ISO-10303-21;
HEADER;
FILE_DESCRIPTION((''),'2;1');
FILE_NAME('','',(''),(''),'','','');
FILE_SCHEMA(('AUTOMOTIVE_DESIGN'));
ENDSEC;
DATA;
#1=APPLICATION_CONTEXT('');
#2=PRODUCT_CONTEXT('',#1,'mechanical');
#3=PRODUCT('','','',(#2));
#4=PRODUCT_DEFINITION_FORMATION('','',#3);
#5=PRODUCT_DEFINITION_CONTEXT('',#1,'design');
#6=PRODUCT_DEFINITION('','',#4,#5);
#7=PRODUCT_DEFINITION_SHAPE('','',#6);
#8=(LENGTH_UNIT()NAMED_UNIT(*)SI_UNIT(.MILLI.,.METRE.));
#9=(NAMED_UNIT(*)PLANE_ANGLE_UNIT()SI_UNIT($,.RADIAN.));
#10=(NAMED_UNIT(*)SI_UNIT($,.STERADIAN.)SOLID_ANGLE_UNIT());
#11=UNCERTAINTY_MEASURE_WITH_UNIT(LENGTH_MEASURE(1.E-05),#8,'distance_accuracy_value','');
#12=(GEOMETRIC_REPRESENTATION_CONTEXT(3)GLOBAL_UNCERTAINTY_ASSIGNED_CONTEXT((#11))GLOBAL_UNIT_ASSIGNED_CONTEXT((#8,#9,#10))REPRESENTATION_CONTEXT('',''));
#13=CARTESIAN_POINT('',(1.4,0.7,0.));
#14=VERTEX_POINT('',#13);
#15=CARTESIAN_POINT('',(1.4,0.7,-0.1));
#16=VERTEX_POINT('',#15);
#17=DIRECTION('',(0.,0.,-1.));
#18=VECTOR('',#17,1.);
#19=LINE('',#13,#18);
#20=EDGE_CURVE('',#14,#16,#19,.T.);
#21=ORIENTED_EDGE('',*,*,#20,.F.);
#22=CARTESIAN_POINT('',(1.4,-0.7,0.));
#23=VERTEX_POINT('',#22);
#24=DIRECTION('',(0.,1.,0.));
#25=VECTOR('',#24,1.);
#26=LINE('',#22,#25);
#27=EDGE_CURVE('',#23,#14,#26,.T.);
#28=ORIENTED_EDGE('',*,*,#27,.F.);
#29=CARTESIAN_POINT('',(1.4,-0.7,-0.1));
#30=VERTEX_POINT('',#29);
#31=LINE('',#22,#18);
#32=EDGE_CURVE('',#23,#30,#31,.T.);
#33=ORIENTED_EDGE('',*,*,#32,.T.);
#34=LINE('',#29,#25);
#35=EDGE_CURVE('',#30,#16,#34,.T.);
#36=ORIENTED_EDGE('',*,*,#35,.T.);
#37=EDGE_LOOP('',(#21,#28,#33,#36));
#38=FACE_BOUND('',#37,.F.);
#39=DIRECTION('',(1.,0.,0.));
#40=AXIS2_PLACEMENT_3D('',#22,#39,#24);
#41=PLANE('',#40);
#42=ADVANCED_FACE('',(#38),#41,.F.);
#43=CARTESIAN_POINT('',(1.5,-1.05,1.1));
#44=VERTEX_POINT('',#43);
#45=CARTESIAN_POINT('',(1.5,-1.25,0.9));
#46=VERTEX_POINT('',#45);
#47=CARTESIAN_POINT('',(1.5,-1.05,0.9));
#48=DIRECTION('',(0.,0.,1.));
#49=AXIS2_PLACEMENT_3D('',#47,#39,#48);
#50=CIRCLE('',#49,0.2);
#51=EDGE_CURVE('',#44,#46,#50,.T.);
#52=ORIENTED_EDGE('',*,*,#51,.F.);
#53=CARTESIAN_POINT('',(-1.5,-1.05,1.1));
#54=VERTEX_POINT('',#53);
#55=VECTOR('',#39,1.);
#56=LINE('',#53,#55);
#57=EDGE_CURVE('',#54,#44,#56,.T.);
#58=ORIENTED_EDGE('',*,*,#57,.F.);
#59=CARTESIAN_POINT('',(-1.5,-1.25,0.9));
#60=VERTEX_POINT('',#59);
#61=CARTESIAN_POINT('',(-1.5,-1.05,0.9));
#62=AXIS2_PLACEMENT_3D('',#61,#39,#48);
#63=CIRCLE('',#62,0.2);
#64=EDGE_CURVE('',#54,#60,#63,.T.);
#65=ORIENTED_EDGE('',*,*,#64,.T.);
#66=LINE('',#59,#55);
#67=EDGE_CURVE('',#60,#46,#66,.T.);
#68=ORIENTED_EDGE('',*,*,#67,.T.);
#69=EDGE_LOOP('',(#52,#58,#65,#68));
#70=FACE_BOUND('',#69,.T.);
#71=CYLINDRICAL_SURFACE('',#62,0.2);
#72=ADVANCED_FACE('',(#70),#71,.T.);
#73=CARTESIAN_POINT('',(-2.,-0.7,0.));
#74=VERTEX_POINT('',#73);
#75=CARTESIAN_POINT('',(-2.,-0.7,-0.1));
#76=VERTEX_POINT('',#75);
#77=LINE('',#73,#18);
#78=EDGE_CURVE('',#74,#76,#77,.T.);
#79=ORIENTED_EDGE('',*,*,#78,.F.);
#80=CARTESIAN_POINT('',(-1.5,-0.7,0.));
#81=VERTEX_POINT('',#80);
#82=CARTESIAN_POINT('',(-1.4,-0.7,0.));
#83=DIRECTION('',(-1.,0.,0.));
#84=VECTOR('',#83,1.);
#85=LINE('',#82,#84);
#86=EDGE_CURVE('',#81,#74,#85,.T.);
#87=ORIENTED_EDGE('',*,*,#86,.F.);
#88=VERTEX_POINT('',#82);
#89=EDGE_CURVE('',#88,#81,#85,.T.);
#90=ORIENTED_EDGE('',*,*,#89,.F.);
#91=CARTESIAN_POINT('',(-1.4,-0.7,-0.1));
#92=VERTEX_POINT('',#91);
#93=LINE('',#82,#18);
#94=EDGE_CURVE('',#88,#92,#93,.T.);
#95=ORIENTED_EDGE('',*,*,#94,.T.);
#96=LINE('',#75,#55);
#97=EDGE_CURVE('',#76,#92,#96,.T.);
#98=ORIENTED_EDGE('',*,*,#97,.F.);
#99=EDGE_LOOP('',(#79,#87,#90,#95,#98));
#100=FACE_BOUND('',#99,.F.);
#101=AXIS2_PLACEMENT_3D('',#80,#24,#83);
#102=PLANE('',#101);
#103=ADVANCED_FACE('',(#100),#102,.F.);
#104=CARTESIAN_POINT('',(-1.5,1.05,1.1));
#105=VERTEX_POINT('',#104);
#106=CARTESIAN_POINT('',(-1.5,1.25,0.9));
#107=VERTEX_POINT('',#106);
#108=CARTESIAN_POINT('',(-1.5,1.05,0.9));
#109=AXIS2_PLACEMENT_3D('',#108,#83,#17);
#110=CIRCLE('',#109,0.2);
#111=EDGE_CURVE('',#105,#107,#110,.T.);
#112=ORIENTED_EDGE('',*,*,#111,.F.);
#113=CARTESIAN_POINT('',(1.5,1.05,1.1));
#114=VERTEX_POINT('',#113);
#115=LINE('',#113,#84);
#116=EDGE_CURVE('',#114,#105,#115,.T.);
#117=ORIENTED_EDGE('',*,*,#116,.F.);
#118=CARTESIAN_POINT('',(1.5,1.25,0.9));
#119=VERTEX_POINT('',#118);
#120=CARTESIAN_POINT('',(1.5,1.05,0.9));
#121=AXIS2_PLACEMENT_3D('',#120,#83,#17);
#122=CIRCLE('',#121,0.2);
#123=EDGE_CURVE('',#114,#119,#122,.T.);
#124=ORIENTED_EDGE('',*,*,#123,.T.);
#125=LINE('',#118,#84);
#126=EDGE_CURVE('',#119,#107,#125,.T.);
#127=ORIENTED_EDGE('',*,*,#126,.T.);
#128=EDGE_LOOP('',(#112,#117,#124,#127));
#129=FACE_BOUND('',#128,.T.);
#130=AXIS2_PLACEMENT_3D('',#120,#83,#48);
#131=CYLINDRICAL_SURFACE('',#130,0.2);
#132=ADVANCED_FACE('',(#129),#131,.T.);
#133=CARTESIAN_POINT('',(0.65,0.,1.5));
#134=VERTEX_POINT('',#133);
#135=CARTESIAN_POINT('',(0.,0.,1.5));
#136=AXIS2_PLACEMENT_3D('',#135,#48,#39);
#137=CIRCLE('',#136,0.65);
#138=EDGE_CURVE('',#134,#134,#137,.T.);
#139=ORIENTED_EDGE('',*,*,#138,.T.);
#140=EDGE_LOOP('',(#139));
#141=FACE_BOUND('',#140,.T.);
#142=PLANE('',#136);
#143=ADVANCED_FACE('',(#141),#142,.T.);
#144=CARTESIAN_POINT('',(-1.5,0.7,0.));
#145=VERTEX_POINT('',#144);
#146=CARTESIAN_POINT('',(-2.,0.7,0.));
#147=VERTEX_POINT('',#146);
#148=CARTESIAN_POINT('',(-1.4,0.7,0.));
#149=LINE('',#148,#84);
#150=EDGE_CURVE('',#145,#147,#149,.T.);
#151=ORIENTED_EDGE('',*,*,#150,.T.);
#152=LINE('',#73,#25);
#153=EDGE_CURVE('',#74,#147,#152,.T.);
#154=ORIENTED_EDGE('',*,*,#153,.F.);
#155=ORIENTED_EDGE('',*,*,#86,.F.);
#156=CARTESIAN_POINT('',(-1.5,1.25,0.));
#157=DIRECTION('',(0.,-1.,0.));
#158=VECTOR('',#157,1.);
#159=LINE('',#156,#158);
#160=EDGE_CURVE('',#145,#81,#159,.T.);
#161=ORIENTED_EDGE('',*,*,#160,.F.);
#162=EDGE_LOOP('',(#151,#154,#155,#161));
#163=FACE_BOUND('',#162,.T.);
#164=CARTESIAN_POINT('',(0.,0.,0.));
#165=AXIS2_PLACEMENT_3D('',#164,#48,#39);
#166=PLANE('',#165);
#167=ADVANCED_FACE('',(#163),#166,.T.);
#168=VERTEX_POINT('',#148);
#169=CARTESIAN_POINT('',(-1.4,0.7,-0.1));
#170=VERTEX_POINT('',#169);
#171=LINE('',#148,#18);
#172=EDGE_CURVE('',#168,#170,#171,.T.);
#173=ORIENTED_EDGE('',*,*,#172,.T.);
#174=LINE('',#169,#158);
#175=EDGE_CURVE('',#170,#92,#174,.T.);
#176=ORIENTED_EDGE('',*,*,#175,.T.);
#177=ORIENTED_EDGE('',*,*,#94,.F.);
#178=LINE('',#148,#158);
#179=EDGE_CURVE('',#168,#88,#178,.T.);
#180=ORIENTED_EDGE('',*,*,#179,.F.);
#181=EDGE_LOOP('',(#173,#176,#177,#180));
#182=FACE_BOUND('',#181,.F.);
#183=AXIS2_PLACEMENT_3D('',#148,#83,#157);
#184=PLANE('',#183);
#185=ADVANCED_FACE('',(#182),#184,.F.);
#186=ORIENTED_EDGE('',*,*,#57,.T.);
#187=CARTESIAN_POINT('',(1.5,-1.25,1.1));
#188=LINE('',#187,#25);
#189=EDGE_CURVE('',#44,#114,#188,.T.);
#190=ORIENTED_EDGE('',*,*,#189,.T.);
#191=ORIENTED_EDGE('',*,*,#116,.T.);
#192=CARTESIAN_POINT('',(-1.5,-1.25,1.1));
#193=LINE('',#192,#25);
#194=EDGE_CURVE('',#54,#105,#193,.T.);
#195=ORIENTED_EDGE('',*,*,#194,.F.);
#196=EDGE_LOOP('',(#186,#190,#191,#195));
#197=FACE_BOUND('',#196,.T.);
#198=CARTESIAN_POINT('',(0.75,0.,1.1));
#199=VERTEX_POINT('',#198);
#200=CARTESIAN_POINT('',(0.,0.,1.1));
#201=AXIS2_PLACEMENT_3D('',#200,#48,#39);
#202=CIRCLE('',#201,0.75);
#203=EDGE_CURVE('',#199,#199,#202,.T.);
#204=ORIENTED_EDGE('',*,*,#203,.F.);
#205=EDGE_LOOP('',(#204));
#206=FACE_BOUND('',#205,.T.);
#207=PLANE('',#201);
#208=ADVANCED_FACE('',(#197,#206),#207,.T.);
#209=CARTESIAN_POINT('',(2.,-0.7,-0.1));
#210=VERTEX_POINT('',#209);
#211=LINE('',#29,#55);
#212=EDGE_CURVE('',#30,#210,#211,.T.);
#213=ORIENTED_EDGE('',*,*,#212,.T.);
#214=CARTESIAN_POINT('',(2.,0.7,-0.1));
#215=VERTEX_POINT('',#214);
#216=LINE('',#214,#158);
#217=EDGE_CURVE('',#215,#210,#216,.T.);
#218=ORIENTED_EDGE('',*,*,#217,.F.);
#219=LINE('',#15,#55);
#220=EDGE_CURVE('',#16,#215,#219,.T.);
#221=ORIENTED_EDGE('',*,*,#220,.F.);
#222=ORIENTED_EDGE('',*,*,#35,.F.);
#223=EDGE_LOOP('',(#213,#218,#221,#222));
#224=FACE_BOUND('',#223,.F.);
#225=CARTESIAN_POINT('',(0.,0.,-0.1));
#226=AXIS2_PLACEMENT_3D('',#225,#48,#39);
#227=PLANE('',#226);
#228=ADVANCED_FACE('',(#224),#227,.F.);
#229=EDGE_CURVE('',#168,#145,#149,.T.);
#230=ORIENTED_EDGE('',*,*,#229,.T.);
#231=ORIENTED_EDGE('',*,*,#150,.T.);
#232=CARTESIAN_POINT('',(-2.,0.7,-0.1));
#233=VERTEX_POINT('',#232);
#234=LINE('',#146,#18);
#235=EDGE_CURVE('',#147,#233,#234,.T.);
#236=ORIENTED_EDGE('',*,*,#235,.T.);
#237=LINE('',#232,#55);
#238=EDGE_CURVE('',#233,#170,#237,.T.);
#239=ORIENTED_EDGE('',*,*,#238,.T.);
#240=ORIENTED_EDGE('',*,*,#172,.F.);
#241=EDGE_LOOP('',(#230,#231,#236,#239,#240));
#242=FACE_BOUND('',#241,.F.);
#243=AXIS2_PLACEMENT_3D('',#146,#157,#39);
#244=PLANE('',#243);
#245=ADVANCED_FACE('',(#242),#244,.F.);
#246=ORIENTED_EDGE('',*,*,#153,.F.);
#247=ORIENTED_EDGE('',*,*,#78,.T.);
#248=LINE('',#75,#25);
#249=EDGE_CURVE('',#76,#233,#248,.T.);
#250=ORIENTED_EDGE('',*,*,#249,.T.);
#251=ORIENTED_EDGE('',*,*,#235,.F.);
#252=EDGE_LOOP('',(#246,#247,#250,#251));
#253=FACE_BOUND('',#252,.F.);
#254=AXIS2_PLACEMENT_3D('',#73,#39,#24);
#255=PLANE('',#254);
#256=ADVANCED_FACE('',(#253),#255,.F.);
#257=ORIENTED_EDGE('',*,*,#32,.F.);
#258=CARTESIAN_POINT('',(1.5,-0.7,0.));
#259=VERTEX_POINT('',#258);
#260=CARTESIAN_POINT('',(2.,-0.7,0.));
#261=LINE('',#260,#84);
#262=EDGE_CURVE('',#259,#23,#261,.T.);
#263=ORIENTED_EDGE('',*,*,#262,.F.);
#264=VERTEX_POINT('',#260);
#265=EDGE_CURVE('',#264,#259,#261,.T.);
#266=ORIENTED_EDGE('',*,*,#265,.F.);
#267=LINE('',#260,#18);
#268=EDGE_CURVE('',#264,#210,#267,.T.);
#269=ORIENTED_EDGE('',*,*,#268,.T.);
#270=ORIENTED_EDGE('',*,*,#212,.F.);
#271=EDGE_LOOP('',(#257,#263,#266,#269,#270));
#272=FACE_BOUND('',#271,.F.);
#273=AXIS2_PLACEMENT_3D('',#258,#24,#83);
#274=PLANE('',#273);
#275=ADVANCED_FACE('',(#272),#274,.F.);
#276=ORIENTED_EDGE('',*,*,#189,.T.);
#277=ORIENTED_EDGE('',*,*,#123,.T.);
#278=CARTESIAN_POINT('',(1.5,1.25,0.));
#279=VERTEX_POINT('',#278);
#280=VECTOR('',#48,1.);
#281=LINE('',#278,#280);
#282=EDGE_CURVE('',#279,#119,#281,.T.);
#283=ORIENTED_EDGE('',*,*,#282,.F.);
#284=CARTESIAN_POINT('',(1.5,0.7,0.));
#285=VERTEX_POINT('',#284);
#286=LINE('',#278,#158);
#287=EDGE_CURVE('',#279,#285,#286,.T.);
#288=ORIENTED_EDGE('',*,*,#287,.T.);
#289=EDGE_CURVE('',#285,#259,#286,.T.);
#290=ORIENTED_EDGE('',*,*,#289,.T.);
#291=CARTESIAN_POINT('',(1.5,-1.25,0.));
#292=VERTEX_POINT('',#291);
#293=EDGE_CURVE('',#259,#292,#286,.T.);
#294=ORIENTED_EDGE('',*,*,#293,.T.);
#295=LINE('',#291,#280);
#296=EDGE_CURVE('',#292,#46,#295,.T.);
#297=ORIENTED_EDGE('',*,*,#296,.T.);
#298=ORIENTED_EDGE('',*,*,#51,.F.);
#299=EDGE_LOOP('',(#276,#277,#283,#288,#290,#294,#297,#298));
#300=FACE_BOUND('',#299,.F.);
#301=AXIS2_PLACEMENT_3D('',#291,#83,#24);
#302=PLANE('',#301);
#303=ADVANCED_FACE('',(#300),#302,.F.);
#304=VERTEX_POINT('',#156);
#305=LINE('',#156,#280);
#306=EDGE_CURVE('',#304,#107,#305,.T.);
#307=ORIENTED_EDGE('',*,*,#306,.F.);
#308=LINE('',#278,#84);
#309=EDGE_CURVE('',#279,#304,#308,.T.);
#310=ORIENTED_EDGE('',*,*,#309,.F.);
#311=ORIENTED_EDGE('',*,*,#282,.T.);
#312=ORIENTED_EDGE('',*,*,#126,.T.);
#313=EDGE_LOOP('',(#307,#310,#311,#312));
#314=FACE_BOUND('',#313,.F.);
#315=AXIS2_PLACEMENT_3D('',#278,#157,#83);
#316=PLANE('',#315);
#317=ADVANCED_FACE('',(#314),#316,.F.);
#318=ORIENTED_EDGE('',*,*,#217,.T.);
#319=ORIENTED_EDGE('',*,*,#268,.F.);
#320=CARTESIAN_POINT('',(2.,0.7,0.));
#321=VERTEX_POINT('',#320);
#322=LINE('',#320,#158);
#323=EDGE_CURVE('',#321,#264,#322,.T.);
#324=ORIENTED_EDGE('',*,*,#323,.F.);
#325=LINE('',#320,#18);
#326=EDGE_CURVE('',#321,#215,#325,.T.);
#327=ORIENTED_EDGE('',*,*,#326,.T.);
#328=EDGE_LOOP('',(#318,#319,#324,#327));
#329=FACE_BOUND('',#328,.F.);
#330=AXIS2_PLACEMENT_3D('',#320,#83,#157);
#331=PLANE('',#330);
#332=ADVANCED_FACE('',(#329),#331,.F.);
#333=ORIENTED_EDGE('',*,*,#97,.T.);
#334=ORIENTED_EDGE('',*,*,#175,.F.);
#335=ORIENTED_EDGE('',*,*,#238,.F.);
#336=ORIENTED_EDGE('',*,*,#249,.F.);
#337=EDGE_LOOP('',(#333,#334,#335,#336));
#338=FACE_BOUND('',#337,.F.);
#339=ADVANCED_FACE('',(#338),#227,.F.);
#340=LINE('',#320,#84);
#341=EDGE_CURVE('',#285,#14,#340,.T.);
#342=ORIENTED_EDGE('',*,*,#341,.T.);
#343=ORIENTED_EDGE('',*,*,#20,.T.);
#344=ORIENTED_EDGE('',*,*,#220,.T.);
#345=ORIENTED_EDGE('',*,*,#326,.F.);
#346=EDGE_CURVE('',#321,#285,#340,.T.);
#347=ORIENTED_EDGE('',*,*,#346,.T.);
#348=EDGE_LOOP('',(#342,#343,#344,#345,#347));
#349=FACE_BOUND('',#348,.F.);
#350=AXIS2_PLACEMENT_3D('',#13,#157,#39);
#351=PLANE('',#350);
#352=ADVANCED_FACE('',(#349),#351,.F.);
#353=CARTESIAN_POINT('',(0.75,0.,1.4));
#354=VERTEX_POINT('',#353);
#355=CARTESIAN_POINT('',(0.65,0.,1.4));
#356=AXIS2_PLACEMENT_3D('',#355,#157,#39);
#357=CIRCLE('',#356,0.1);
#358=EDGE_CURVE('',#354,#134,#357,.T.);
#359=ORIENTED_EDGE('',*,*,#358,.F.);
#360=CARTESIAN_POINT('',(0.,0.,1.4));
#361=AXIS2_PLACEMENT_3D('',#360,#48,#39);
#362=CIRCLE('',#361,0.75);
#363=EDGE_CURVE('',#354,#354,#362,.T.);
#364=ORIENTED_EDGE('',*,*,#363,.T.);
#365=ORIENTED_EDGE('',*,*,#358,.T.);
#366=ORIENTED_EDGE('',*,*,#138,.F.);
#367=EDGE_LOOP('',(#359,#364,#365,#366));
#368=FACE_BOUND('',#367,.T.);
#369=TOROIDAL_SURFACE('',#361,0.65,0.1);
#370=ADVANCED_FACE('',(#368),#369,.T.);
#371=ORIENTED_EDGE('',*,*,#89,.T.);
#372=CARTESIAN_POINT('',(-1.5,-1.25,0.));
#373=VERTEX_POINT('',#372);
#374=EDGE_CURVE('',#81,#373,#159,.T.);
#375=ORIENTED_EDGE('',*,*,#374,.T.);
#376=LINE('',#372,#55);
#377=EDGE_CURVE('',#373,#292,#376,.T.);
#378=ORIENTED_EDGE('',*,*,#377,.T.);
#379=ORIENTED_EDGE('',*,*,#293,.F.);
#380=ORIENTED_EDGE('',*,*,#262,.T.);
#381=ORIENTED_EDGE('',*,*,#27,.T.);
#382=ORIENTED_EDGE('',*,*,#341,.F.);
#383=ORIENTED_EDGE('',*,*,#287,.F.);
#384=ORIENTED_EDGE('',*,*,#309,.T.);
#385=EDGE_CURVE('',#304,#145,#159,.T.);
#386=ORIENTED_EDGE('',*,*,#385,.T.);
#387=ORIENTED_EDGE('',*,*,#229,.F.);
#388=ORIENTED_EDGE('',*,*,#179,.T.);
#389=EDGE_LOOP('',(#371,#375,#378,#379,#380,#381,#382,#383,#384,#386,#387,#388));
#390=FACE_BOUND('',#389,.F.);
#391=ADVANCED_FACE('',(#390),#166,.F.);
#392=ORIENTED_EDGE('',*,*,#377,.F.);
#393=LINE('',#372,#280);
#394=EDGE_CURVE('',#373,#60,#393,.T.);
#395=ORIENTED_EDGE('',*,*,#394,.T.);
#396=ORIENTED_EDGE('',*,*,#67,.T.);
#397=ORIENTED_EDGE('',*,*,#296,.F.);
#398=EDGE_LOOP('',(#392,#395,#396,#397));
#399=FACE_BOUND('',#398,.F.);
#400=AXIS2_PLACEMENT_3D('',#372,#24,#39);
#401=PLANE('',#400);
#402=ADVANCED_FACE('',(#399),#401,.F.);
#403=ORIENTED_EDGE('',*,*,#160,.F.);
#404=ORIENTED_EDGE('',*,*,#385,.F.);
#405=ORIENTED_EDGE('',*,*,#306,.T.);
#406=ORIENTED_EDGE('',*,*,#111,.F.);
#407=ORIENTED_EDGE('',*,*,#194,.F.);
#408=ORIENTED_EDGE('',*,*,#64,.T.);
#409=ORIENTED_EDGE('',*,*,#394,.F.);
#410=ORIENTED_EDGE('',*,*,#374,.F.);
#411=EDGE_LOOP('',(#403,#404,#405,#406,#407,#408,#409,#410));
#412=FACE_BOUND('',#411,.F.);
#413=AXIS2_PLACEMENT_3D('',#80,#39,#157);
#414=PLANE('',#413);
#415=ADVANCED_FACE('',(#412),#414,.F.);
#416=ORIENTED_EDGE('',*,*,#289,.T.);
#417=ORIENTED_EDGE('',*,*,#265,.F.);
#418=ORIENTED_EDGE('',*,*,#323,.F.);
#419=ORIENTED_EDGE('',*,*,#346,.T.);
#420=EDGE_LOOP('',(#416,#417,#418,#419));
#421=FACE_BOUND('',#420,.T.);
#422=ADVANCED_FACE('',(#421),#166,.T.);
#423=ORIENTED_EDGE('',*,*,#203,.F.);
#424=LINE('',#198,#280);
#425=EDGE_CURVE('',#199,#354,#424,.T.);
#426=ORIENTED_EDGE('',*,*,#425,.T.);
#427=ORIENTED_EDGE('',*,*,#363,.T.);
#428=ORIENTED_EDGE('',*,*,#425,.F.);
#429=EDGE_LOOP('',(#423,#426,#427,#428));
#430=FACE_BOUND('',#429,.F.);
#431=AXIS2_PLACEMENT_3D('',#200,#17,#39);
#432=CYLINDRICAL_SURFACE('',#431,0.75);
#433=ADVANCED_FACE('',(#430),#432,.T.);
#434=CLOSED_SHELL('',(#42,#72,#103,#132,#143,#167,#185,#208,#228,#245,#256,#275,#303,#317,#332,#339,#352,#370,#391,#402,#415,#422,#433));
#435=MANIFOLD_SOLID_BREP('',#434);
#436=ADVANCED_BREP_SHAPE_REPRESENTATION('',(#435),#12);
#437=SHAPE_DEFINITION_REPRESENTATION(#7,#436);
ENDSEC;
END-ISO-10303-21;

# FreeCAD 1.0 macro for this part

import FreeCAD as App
import Part
import Sketcher
Q = App.Units.Quantity


def edges_at(feature, points):
    """Names of the edges that pass closest to the given points."""
    edges = feature.Shape.Edges
    near = lambda p: min(range(len(edges)), key=lambda i: edges[i].distToShape(Part.Vertex(*p))[0])
    return sorted({f"Edge{near(p) + 1}" for p in points})

doc = App.newDocument("Part")
body = doc.addObject("PartDesign::Body", "Body")

# Sketch on XY plane
sketch1 = body.newObject("Sketcher::SketchObject", "Sketch")
sketch1.AttachmentSupport = (doc.getObject("XY_Plane"), [""])
sketch1.MapMode = "FlatFace"
sketch1.addGeometry(Part.LineSegment(App.Vector(-1.5, -1.2, 0), App.Vector(1.5, -1.2, 0)), False)
sketch1.addGeometry(Part.LineSegment(App.Vector(1.5, -1.2, 0), App.Vector(1.5, 1.2, 0)), False)
sketch1.addGeometry(Part.LineSegment(App.Vector(1.5, 1.2, 0), App.Vector(-1.5, 1.2, 0)), False)
sketch1.addGeometry(Part.LineSegment(App.Vector(-1.5, 1.2, 0), App.Vector(-1.5, -1.2, 0)), False)
sketch1.addConstraint(Sketcher.Constraint("Coincident", 0, 2, 1, 1))
sketch1.addConstraint(Sketcher.Constraint("Coincident", 1, 2, 2, 1))
sketch1.addConstraint(Sketcher.Constraint("Coincident", 2, 2, 3, 1))
sketch1.addConstraint(Sketcher.Constraint("Coincident", 3, 2, 0, 1))
sketch1.addConstraint(Sketcher.Constraint("Horizontal", 0))
sketch1.addConstraint(Sketcher.Constraint("Vertical", 1))
sketch1.addConstraint(Sketcher.Constraint("Horizontal", 2))
sketch1.addConstraint(Sketcher.Constraint("Vertical", 3))
sketch1.addConstraint(Sketcher.Constraint("Symmetric", 0, 2, 2, 2, -1, 1))
sketch1.addConstraint(Sketcher.Constraint("DistanceX", 0, 1, 0, 2, Q("3 mm")))
sketch1.addConstraint(Sketcher.Constraint("DistanceY", 1, 1, 1, 2, Q("2.5 mm")))
pad1 = body.newObject("PartDesign::Pad", "Pad")
pad1.Profile = sketch1
pad1.Length = 1.1

# Sketch on XY plane
sketch2 = body.newObject("Sketcher::SketchObject", "Sketch001")
sketch2.AttachmentSupport = (doc.getObject("XY_Plane"), [""])
sketch2.MapMode = "FlatFace"
sketch2.addGeometry(Part.LineSegment(App.Vector(-2, -0.7, 0), App.Vector(-1.4, -0.7, 0)), False)
sketch2.addGeometry(Part.LineSegment(App.Vector(-1.4, -0.7, 0), App.Vector(-1.4, 0.7, 0)), False)
sketch2.addGeometry(Part.LineSegment(App.Vector(-1.4, 0.7, 0), App.Vector(-2, 0.7, 0)), False)
sketch2.addGeometry(Part.LineSegment(App.Vector(-2, 0.7, 0), App.Vector(-2, -0.7, 0)), False)
sketch2.addGeometry(Part.LineSegment(App.Vector(1.4, -0.7, 0), App.Vector(2, -0.7, 0)), False)
sketch2.addGeometry(Part.LineSegment(App.Vector(2, -0.7, 0), App.Vector(2, 0.7, 0)), False)
sketch2.addGeometry(Part.LineSegment(App.Vector(2, 0.7, 0), App.Vector(1.4, 0.7, 0)), False)
sketch2.addGeometry(Part.LineSegment(App.Vector(1.4, 0.7, 0), App.Vector(1.4, -0.7, 0)), False)
sketch2.addConstraint(Sketcher.Constraint("Coincident", 0, 2, 1, 1))
sketch2.addConstraint(Sketcher.Constraint("Coincident", 1, 2, 2, 1))
sketch2.addConstraint(Sketcher.Constraint("Coincident", 2, 2, 3, 1))
sketch2.addConstraint(Sketcher.Constraint("Coincident", 3, 2, 0, 1))
sketch2.addConstraint(Sketcher.Constraint("Coincident", 4, 2, 5, 1))
sketch2.addConstraint(Sketcher.Constraint("Coincident", 5, 2, 6, 1))
sketch2.addConstraint(Sketcher.Constraint("Coincident", 6, 2, 7, 1))
sketch2.addConstraint(Sketcher.Constraint("Coincident", 7, 2, 4, 1))
sketch2.addConstraint(Sketcher.Constraint("Horizontal", 0))
sketch2.addConstraint(Sketcher.Constraint("Vertical", 1))
sketch2.addConstraint(Sketcher.Constraint("Horizontal", 2))
sketch2.addConstraint(Sketcher.Constraint("Vertical", 3))
sketch2.addConstraint(Sketcher.Constraint("Horizontal", 4))
sketch2.addConstraint(Sketcher.Constraint("Vertical", 5))
sketch2.addConstraint(Sketcher.Constraint("Horizontal", 6))
sketch2.addConstraint(Sketcher.Constraint("Vertical", 7))
sketch2.addConstraint(Sketcher.Constraint("Symmetric", 2, 2, 4, 2, -1, 1))
sketch2.addConstraint(Sketcher.Constraint("Symmetric", 0, 2, 6, 2, -1, 1))
sketch2.addConstraint(Sketcher.Constraint("Horizontal", 3, 2, 4, 2))
sketch2.addConstraint(Sketcher.Constraint("DistanceY", 1, 1, 1, 2, Q("1.4 mm")))
sketch2.addConstraint(Sketcher.Constraint("DistanceX", 3, 2, 4, 2, Q("4 mm")))
sketch2.addConstraint(Sketcher.Constraint("DistanceX", 0, 2, -1, 1, Q("1.4 mm")))
pad2 = body.newObject("PartDesign::Pad", "Pad001")
pad2.Profile = sketch2
pad2.Length = 0.1
pad2.Reversed = True

# Sketch on XY plane
sketch3 = body.newObject("Sketcher::SketchObject", "Sketch002")
sketch3.AttachmentSupport = (doc.getObject("XY_Plane"), [""])
sketch3.MapMode = "FlatFace"
sketch3.AttachmentOffset = App.Placement(App.Vector(0, 0, 1.1), App.Rotation())
sketch3.addGeometry(Part.Circle(App.Vector(0, 0, 0), App.Vector(0, 0, 1), 0.8), False)
sketch3.addConstraint(Sketcher.Constraint("Coincident", 0, 3, -1, 1))
sketch3.addConstraint(Sketcher.Constraint("Diameter", 0, Q("1.5 mm")))
pad3 = body.newObject("PartDesign::Pad", "Pad002")
pad3.Profile = sketch3
pad3.Length = 0.4
doc.recompute()

fillet = body.newObject("PartDesign::Fillet", "Fillet")
fillet.Base = (pad3, edges_at(pad3, [(-0.75, 0, 1.5)]))
fillet.Radius = 0.1
doc.recompute()

fillet2 = body.newObject("PartDesign::Fillet", "Fillet001")
fillet2.Base = (fillet, edges_at(fillet, [(0, 1.25, 1.1), (0, -1.25, 1.1)]))
fillet2.Radius = 0.2

doc.recompute()
